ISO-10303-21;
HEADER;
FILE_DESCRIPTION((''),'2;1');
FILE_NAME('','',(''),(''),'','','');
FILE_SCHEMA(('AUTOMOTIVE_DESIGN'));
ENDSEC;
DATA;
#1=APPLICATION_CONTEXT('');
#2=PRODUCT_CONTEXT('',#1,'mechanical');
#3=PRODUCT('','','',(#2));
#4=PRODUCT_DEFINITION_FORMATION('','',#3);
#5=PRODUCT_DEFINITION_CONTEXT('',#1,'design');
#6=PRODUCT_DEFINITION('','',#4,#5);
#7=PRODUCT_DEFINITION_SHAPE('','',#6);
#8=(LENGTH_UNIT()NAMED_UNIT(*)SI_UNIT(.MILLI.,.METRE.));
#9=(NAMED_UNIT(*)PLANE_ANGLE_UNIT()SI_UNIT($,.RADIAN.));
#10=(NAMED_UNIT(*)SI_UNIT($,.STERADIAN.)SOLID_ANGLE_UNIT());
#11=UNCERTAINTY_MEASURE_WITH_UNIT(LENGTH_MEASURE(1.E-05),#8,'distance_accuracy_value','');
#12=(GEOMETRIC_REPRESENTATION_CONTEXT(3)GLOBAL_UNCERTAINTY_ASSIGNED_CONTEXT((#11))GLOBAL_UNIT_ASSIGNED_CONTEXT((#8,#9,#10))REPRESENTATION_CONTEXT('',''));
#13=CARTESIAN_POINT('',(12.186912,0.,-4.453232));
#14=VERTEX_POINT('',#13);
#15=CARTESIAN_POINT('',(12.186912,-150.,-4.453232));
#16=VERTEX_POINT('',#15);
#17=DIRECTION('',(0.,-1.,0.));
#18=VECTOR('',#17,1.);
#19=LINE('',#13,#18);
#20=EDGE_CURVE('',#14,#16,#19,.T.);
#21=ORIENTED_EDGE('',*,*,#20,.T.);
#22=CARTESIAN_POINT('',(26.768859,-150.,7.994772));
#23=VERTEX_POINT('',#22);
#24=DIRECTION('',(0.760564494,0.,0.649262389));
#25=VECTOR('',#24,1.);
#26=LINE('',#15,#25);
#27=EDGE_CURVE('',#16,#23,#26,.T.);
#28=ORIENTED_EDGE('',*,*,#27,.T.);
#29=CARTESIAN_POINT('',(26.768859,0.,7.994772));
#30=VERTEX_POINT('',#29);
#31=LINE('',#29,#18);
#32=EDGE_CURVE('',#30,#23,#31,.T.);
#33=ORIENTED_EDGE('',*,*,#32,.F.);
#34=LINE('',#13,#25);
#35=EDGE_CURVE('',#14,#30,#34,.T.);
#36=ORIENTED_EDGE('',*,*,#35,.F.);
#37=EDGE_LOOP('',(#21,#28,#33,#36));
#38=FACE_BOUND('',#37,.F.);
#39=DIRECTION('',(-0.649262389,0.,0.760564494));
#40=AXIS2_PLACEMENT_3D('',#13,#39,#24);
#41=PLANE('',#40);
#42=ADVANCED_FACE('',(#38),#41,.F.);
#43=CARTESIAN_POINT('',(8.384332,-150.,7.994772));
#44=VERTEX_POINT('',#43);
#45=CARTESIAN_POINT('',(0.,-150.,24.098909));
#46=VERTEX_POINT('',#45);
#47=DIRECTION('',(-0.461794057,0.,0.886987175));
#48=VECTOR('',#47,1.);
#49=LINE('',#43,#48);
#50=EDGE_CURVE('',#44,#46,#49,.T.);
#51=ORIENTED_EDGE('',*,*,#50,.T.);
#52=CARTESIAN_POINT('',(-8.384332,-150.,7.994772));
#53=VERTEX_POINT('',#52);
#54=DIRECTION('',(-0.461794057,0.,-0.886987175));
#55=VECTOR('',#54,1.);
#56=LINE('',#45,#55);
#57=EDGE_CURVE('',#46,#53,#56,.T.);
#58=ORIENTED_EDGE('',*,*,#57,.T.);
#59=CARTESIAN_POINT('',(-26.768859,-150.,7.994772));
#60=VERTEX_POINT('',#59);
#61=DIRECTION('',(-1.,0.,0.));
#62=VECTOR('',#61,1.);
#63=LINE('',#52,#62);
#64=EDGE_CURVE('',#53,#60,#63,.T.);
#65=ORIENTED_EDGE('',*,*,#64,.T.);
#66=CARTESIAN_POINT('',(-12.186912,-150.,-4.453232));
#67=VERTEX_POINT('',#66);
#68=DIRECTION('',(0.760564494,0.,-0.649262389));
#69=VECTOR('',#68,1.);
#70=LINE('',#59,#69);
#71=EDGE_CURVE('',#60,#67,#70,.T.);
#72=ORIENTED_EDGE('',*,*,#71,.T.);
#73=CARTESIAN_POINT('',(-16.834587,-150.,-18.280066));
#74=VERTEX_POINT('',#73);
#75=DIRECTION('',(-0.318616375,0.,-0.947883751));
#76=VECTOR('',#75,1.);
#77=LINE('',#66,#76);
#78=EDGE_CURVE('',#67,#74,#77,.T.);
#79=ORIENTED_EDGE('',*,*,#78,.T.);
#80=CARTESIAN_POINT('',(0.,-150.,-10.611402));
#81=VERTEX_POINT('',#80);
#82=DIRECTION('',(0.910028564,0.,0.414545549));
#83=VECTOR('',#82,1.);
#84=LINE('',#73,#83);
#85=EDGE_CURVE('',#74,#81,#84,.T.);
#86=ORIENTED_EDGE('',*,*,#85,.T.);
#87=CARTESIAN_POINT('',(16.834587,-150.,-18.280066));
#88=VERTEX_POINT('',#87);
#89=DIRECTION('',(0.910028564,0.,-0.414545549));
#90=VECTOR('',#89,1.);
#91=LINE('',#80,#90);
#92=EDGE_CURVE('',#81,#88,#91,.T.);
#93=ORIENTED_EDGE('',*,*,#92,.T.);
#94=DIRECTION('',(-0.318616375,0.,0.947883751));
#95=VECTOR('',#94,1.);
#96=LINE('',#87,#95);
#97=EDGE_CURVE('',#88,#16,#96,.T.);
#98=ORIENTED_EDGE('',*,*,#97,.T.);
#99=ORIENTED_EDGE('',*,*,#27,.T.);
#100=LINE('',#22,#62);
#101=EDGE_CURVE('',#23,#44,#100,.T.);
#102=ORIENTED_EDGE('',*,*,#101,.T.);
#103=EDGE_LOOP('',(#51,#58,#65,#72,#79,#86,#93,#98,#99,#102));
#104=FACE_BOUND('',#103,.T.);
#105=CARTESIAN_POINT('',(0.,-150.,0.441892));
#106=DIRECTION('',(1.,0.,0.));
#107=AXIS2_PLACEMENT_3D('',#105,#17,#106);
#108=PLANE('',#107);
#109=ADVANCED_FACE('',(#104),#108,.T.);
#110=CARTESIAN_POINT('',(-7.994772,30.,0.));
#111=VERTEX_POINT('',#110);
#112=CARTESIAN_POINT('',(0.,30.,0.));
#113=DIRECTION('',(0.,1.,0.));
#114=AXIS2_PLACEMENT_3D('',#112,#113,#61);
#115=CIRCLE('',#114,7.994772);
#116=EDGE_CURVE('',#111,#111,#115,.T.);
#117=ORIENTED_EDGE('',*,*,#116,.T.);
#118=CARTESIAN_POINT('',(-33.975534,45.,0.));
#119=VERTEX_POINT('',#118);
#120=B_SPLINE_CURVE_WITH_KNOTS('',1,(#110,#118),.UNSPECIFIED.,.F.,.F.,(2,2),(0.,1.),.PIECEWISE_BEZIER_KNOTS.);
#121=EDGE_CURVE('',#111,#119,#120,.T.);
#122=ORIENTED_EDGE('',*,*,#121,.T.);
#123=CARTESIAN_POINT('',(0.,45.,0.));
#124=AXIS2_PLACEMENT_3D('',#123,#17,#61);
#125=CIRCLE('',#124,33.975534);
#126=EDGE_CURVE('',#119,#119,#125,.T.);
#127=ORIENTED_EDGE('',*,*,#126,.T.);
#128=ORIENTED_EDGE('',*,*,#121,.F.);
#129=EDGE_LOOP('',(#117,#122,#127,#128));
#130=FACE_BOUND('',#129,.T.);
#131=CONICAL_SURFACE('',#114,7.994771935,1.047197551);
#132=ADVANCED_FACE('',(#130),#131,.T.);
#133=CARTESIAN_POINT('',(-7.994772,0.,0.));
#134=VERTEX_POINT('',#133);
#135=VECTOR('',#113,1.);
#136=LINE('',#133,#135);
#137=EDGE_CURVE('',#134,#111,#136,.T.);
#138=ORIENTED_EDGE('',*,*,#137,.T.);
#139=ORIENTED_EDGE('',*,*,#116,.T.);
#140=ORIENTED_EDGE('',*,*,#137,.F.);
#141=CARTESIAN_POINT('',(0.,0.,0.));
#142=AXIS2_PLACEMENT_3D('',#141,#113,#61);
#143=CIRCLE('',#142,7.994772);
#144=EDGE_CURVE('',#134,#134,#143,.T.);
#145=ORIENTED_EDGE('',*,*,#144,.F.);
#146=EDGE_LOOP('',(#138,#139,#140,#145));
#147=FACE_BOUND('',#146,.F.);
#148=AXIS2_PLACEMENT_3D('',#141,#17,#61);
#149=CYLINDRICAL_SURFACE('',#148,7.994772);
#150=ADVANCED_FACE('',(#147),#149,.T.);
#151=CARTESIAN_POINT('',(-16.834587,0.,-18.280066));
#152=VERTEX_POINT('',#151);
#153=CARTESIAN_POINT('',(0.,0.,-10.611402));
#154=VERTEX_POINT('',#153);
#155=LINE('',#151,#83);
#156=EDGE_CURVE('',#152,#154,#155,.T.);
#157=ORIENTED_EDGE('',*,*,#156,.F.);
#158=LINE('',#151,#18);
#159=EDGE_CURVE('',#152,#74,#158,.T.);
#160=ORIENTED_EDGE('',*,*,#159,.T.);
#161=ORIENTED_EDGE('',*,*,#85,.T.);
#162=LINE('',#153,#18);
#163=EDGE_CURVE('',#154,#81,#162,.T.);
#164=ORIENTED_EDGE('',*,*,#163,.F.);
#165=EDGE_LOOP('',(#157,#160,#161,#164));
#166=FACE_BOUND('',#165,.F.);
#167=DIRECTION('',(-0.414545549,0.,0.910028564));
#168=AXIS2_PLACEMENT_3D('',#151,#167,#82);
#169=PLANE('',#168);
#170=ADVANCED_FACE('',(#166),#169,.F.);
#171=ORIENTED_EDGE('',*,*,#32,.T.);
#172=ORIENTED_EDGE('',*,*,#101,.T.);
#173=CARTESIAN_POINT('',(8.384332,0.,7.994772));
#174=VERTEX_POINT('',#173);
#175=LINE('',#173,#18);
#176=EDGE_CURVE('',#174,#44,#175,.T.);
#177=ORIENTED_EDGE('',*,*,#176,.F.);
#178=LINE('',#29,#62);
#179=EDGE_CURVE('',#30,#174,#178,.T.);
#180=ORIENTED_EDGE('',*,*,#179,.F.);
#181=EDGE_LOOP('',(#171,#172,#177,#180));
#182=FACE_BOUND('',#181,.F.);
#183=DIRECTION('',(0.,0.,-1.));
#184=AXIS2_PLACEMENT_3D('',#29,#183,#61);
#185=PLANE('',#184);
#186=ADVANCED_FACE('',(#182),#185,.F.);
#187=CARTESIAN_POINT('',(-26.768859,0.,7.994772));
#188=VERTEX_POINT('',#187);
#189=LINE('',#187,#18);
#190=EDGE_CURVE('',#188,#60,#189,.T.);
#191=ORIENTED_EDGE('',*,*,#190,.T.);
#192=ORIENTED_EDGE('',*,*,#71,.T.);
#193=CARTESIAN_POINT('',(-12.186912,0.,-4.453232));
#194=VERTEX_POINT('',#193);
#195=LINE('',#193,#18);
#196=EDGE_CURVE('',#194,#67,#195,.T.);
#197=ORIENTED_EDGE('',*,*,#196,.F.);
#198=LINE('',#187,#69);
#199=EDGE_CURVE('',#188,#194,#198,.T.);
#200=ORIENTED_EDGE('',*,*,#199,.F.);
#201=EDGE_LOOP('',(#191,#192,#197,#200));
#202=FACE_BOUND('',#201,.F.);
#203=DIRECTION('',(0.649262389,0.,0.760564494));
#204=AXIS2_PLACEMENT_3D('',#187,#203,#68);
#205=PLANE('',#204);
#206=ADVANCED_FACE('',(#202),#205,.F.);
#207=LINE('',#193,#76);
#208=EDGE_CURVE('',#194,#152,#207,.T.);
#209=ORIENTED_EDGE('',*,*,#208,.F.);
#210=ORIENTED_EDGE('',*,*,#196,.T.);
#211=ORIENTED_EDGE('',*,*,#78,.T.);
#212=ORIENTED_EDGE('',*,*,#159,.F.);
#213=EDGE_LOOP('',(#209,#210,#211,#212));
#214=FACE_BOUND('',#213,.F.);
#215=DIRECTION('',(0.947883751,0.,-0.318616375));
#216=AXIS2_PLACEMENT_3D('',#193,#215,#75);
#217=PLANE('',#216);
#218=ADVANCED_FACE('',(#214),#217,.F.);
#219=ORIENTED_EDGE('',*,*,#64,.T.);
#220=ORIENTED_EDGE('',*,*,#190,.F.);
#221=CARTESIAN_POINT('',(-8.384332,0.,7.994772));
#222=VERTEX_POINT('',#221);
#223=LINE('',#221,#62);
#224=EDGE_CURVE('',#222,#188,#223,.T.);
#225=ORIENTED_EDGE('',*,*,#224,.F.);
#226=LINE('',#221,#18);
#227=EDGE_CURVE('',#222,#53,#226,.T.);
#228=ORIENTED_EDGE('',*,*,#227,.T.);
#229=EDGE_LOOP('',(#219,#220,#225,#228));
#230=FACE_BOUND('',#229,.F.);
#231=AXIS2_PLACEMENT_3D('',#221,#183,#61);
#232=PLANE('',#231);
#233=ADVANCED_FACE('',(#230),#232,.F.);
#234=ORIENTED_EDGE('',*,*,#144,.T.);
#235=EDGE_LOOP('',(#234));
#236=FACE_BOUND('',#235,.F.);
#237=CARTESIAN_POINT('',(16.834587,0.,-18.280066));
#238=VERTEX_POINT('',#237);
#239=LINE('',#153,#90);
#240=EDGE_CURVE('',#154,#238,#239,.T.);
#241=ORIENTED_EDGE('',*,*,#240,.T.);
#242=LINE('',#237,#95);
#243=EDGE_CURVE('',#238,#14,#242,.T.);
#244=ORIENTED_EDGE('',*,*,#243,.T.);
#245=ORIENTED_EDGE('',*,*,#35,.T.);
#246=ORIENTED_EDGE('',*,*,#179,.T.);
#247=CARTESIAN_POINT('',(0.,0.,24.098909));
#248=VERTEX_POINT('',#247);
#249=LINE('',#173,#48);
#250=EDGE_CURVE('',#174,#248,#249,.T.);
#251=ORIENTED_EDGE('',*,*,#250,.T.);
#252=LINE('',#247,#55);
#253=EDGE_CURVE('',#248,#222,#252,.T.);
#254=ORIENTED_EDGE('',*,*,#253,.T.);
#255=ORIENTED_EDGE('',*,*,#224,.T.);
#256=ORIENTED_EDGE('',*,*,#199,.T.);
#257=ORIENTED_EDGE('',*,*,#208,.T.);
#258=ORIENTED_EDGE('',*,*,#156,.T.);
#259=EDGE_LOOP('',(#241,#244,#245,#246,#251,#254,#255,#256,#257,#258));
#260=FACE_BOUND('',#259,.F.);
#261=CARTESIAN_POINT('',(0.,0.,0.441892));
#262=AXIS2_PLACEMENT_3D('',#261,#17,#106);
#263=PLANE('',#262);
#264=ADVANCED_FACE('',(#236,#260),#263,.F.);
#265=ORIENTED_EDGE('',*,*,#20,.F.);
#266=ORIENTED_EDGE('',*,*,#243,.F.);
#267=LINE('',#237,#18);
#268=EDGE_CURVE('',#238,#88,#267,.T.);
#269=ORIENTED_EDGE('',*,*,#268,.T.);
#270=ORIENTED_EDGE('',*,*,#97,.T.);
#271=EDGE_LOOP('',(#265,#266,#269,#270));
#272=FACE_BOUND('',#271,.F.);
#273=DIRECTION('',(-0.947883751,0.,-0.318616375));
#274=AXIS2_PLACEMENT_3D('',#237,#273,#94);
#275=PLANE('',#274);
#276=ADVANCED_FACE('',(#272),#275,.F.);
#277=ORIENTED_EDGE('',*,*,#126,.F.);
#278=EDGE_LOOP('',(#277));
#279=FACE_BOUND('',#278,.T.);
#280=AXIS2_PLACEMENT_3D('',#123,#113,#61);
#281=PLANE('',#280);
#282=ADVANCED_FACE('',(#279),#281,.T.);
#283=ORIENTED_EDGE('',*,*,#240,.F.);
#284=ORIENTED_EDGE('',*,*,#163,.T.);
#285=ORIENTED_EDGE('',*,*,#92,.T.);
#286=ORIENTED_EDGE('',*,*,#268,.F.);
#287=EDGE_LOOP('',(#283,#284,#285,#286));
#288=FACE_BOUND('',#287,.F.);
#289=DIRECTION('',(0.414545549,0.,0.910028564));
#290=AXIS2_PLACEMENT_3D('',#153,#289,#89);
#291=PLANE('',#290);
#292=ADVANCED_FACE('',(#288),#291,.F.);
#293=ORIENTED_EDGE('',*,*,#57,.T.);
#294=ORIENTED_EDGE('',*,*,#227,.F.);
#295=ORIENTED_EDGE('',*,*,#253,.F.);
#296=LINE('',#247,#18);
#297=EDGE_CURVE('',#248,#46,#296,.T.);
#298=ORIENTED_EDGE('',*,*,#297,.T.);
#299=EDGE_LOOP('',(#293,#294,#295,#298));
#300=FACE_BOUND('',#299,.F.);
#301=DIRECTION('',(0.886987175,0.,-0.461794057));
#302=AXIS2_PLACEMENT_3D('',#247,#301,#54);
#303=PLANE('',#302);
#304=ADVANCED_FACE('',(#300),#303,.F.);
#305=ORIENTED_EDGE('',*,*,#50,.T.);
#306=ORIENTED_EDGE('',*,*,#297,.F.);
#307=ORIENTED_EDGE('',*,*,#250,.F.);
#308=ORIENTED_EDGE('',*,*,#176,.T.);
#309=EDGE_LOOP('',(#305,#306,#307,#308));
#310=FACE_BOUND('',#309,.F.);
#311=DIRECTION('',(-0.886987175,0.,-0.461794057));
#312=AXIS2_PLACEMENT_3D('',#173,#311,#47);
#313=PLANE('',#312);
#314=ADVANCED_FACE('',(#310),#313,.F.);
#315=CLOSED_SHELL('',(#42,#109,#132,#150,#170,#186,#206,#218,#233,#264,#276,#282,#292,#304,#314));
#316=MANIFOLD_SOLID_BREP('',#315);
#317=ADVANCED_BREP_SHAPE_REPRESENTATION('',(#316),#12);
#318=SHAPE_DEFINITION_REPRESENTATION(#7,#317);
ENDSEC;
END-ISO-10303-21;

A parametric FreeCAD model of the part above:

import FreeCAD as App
import Part
import Sketcher
from FreeCAD import Vector


def add_polygon(sketch, points):
    """Adds a closed chain of lines whose ends are joined by coincident constraints."""
    first, n = sketch.GeometryCount, len(points)
    for a, b in zip(points, points[1:] + points[:1]):
        sketch.addGeometry(Part.LineSegment(App.Vector(*a, 0), App.Vector(*b, 0)), False)
    for i in range(n):
        sketch.addConstraint(Sketcher.Constraint("Coincident", first + i, 2, first + (i + 1) % n, 1))

doc = App.newDocument("Part")
body = doc.addObject("PartDesign::Body", "Body")

# Sketch on XZ plane
sketch1 = body.newObject("Sketcher::SketchObject", "Sketch")
sketch1.AttachmentSupport = (doc.getObject("XZ_Plane"), [""])
sketch1.MapMode = "FlatFace"
add_polygon(sketch1, [(8, 8), (0, 24), (-8, 8), (-27, 8), (-12, -4), (-17, -18), (0, -11), (17, -18), (12, -4), (27, 8)])  # lines 0-9
sketch1.addConstraint([
    Sketcher.Constraint("Horizontal", 2),
    Sketcher.Constraint("Horizontal", 9),
    Sketcher.Constraint("Symmetric", 4, 2, 6, 2, -2),
    Sketcher.Constraint("Symmetric", 3, 2, 7, 2, -2),
    Sketcher.Constraint("Symmetric", 2, 2, 8, 2, -2),
    Sketcher.Constraint("PointOnObject", 0, 2, -2),
    Sketcher.Constraint("PointOnObject", 5, 2, -2),
    Sketcher.Constraint("Equal", 2, 9),
    Sketcher.Constraint("Distance", 0, 18.155998),
    Sketcher.Constraint("DistanceY", 5, 2, -1, 1, 10.611402),
    Sketcher.Constraint("DistanceX", 3, 2, 6, 2, 29.021499),
    Sketcher.Constraint("DistanceX", 2, 2, 2, 1, 18.384527),
    Sketcher.Constraint("DistanceY", -1, 1, 0, 2, 24.098909),
    Sketcher.Constraint("DistanceY", -1, 1, 1, 2, 7.994772),
    Sketcher.Constraint("DistanceX", 3, 2, -1, 1, 12.186912),
    Sketcher.Constraint("DistanceY", 3, 2, 0, 2, 28.552142),
    Sketcher.Constraint("Distance", 4, 14.587056),
])
pad1 = body.newObject("PartDesign::Pad", "Pad")
pad1.Profile = sketch1
pad1.Length = 150

# Sketch on XZ plane
sketch2 = body.newObject("Sketcher::SketchObject", "Sketch001")
sketch2.AttachmentSupport = (doc.getObject("XZ_Plane"), [""])
sketch2.MapMode = "FlatFace"
sketch2.addGeometry(Part.Circle(Vector(0, 0, 0), Vector(0, 0, 1), 8), False)
sketch2.addConstraint([
    Sketcher.Constraint("Coincident", 0, 3, -1, 1),
    Sketcher.Constraint("Diameter", 0, 15.989544),
])
pad2 = body.newObject("PartDesign::Pad", "Pad001")
pad2.Profile = sketch2
pad2.Length = 30
pad2.Reversed = True

# Sketch on XZ plane
sketch3 = body.newObject("Sketcher::SketchObject", "Sketch002")
sketch3.AttachmentSupport = (doc.getObject("XZ_Plane"), [""])
sketch3.MapMode = "FlatFace"
sketch3.AttachmentOffset = App.Placement(Vector(0, 0, -30), App.Rotation())
sketch3.addGeometry(Part.Circle(Vector(0, 0, 0), Vector(0, 0, 1), 8), False)
sketch3.addConstraint([
    Sketcher.Constraint("Coincident", 0, 3, -1, 1),
    Sketcher.Constraint("Diameter", 0, 15.989544),
])
pad3 = body.newObject("PartDesign::Pad", "Pad002")
pad3.Profile = sketch3
pad3.Length = 15
pad3.Reversed = True
pad3.TaperAngle = 60

doc.recompute()
